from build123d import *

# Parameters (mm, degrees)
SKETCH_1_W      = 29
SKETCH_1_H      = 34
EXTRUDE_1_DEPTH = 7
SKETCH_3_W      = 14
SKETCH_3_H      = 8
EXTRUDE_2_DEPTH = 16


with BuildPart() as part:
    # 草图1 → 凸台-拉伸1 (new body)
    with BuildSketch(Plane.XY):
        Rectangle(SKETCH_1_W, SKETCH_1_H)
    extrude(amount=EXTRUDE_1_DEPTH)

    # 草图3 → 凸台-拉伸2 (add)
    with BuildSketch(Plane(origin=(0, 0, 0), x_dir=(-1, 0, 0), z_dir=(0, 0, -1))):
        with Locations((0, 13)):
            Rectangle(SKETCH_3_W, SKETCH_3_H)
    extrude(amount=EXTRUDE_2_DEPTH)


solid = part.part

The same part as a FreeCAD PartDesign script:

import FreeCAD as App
import Part
import Sketcher

V = App.Vector


def add_polygon(sketch, points):
    """Adds a closed chain of lines whose ends are joined by coincident constraints."""
    first, n = sketch.GeometryCount, len(points)
    for a, b in zip(points, points[1:] + points[:1]):
        sketch.addGeometry(Part.LineSegment(App.Vector(*a, 0), App.Vector(*b, 0)), False)
    for i in range(n):
        sketch.addConstraint(Sketcher.Constraint("Coincident", first + i, 2, first + (i + 1) % n, 1))

doc = App.newDocument("Part")
body = doc.addObject("PartDesign::Body", "Body")

sketch1 = body.newObject("Sketcher::SketchObject", "Sketch")
sketch1.AttachmentSupport = (doc.getObject("XY_Plane"), [""])
sketch1.MapMode = "FlatFace"
add_polygon(sketch1, [(-14, 17), (-14, -17), (14, -17), (14, 17)])
sketch1.addConstraint(Sketcher.Constraint("Vertical", 0))
sketch1.addConstraint(Sketcher.Constraint("Horizontal", 1))
sketch1.addConstraint(Sketcher.Constraint("Vertical", 2))
sketch1.addConstraint(Sketcher.Constraint("Horizontal", 3))
sketch1.addConstraint(Sketcher.Constraint("Symmetric", 0, 2, 2, 2, -1, 1))
sketch1.addConstraint(Sketcher.Constraint("DistanceX", 1, 1, 1, 2, 29.0))
sketch1.addConstraint(Sketcher.Constraint("DistanceY", 0, 2, 0, 1, 34.0))
pad1 = body.newObject("PartDesign::Pad", "Pad")
pad1.Profile = sketch1
pad1.Length = 7

sketch2 = body.newObject("Sketcher::SketchObject", "Sketch001")
sketch2.AttachmentSupport = (doc.getObject("XY_Plane"), [""])
sketch2.MapMode = "FlatFace"
add_polygon(sketch2, [(7, 17), (7, 9), (-7, 9), (-7, 17)])
sketch2.addConstraint(Sketcher.Constraint("Vertical", 0))
sketch2.addConstraint(Sketcher.Constraint("Horizontal", 1))
sketch2.addConstraint(Sketcher.Constraint("Vertical", 2))
sketch2.addConstraint(Sketcher.Constraint("Horizontal", 3))
sketch2.addConstraint(Sketcher.Constraint("DistanceX", 1, 2, 1, 1, 14.0))
sketch2.addConstraint(Sketcher.Constraint("DistanceY", 0, 2, 0, 1, 8.0))
sketch2.addConstraint(Sketcher.Constraint("DistanceX", -1, 1, 0, 2, 7.0))
sketch2.addConstraint(Sketcher.Constraint("DistanceY", -1, 1, 0, 2, 9.0))
pad2 = body.newObject("PartDesign::Pad", "Pad001")
pad2.Profile = sketch2
pad2.Length = 16
pad2.Reversed = True

doc.recompute()
